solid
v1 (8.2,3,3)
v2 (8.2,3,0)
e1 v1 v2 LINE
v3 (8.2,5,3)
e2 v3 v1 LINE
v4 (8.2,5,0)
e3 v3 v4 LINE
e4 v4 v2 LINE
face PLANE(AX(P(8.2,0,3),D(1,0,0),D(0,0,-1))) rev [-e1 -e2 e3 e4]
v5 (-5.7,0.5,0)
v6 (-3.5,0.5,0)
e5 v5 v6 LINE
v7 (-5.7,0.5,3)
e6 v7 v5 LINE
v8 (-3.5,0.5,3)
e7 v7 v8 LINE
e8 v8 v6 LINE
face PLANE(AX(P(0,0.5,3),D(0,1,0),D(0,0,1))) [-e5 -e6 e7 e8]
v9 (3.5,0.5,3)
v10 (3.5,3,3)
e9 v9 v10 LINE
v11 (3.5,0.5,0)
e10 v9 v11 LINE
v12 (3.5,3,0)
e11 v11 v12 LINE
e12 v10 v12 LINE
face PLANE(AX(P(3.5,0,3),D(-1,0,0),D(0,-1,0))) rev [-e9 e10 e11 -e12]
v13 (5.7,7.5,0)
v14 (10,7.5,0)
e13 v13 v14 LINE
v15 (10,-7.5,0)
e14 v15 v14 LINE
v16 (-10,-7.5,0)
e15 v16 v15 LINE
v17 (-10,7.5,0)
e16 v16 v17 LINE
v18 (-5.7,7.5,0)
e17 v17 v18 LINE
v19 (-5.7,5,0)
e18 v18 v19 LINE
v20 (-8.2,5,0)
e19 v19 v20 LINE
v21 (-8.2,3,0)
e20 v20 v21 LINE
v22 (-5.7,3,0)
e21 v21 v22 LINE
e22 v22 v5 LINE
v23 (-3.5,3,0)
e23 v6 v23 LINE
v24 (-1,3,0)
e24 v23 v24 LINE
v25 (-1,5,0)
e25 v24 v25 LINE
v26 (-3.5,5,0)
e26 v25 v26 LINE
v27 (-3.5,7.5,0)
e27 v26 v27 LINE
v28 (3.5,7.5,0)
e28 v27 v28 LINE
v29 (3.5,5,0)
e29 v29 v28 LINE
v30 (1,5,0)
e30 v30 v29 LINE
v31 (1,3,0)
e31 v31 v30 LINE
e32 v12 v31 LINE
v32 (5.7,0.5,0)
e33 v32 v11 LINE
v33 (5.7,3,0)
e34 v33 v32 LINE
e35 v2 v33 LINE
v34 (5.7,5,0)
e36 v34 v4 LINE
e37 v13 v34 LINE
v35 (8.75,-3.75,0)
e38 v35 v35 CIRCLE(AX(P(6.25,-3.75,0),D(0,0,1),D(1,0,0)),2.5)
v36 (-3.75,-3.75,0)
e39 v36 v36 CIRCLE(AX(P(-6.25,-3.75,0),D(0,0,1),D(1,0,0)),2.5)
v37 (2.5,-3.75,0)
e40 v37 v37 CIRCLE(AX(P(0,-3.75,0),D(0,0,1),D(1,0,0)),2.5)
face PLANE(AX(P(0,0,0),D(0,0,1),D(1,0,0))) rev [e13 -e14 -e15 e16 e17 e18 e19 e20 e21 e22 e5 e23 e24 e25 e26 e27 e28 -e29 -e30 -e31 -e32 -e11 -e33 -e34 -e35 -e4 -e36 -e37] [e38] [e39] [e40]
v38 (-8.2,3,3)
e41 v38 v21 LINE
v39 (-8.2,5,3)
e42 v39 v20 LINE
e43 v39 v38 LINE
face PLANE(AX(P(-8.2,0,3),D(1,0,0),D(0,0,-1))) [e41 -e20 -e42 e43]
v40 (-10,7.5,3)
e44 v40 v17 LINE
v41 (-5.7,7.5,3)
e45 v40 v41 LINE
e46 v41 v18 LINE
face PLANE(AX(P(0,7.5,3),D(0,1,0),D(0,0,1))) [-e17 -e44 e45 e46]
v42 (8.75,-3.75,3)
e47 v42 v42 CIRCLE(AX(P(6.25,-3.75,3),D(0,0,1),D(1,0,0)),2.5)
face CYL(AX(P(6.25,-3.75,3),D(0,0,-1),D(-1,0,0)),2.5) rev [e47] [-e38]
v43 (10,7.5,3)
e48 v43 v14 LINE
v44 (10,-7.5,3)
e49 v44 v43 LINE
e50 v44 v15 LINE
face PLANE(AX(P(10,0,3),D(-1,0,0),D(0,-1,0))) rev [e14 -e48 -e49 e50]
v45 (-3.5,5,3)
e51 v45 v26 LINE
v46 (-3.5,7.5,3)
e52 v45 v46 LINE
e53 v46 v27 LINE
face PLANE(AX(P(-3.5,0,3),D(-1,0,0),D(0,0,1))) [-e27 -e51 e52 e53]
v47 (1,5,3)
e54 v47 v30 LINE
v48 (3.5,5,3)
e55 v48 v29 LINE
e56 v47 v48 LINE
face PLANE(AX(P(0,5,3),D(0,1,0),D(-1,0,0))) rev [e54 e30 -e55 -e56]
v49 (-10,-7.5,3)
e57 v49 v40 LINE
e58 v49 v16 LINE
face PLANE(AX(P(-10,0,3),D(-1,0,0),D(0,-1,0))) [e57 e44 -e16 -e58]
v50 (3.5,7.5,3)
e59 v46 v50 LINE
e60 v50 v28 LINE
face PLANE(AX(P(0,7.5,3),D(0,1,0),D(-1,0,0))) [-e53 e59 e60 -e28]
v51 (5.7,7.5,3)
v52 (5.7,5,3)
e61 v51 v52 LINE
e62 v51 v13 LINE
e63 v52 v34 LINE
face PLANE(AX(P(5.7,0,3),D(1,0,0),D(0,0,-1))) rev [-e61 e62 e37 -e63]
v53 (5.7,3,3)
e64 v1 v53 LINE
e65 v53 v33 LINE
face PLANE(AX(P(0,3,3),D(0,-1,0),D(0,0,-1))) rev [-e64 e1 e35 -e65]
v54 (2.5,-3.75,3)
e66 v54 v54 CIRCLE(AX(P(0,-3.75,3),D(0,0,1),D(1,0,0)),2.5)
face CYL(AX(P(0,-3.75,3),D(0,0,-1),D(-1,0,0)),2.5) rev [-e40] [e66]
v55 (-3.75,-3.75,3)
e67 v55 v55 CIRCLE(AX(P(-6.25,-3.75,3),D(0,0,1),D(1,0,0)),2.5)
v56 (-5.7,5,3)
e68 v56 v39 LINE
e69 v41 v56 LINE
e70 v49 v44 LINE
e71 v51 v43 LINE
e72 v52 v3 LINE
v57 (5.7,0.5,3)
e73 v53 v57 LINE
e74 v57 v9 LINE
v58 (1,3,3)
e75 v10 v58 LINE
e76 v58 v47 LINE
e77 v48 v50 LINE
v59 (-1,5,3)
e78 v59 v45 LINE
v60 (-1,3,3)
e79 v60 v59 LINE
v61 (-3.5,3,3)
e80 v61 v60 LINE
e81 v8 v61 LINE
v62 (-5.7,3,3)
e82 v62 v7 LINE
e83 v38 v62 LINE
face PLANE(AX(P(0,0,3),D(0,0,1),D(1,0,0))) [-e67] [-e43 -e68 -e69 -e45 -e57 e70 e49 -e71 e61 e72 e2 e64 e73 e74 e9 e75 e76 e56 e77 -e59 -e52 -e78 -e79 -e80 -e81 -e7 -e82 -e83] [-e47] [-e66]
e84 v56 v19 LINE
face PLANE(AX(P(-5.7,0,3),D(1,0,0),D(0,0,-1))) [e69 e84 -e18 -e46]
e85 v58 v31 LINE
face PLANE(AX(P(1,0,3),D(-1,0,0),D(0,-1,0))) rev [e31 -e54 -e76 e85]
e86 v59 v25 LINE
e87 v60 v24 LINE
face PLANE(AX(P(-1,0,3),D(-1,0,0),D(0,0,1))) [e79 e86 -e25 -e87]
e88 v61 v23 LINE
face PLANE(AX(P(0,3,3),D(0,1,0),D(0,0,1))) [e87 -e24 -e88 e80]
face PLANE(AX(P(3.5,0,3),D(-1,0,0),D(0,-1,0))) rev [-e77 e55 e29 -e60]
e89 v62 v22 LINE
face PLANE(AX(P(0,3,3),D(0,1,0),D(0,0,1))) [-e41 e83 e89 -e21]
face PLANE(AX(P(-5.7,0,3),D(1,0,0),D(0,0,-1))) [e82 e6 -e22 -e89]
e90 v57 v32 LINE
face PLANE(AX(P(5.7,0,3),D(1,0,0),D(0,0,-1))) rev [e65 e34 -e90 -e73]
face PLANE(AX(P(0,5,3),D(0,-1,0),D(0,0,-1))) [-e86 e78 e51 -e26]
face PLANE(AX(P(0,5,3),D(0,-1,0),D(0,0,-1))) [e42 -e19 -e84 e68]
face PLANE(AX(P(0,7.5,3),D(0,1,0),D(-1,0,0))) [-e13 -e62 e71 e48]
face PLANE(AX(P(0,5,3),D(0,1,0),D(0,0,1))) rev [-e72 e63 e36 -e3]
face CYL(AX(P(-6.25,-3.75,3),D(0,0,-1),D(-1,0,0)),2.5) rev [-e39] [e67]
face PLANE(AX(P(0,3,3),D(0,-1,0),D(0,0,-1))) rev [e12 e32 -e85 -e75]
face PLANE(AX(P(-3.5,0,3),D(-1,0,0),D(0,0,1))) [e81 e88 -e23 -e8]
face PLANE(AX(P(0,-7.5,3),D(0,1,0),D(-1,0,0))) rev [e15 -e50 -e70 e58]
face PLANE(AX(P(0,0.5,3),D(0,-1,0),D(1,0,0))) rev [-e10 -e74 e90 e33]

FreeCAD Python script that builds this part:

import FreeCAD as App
import Part
import Sketcher
from FreeCAD import Vector
Q = App.Units.Quantity

doc = App.newDocument("Part")
body = doc.addObject("PartDesign::Body", "Body")

sketch1 = body.newObject("Sketcher::SketchObject", "Sketch")
sketch1.AttachmentSupport = (doc.getObject("XY_Plane"), [""])
sketch1.MapMode = "FlatFace"
sketch1.addGeometry([
    Part.LineSegment(Vector(-10, -7.5, 0), Vector(10, -7.5, 0)),
    Part.LineSegment(Vector(10, -7.5, 0), Vector(10, 7.5, 0)),
    Part.LineSegment(Vector(10, 7.5, 0), Vector(5.7, 7.5, 0)),
    Part.LineSegment(Vector(5.7, 7.5, 0), Vector(5.7, 5, 0)),
    Part.LineSegment(Vector(5.7, 5, 0), Vector(8.2, 5, 0)),
    Part.LineSegment(Vector(8.2, 5, 0), Vector(8.2, 3, 0)),
    Part.LineSegment(Vector(8.2, 3, 0), Vector(5.7, 3, 0)),
    Part.LineSegment(Vector(5.7, 3, 0), Vector(5.7, 0.5, 0)),
    Part.LineSegment(Vector(5.7, 0.5, 0), Vector(3.5, 0.5, 0)),
    Part.LineSegment(Vector(3.5, 0.5, 0), Vector(3.5, 3, 0)),
    Part.LineSegment(Vector(3.5, 3, 0), Vector(1, 3, 0)),
    Part.LineSegment(Vector(1, 3, 0), Vector(1, 5, 0)),
    Part.LineSegment(Vector(1, 5, 0), Vector(3.5, 5, 0)),
    Part.LineSegment(Vector(3.5, 5, 0), Vector(3.5, 7.5, 0)),
    Part.LineSegment(Vector(3.5, 7.5, 0), Vector(-3.5, 7.5, 0)),
    Part.LineSegment(Vector(-3.5, 7.5, 0), Vector(-3.5, 5, 0)),
    Part.LineSegment(Vector(-3.5, 5, 0), Vector(-1, 5, 0)),
    Part.LineSegment(Vector(-1, 5, 0), Vector(-1, 3, 0)),
    Part.LineSegment(Vector(-1, 3, 0), Vector(-3.5, 3, 0)),
    Part.LineSegment(Vector(-3.5, 3, 0), Vector(-3.5, 0.5, 0)),
    Part.LineSegment(Vector(-3.5, 0.5, 0), Vector(-5.7, 0.5, 0)),
    Part.LineSegment(Vector(-5.7, 0.5, 0), Vector(-5.7, 3, 0)),
    Part.LineSegment(Vector(-5.7, 3, 0), Vector(-8.2, 3, 0)),
    Part.LineSegment(Vector(-8.2, 3, 0), Vector(-8.2, 5, 0)),
    Part.LineSegment(Vector(-8.2, 5, 0), Vector(-5.7, 5, 0)),
    Part.LineSegment(Vector(-5.7, 5, 0), Vector(-5.7, 7.5, 0)),
    Part.LineSegment(Vector(-5.7, 7.5, 0), Vector(-10, 7.5, 0)),
    Part.LineSegment(Vector(-10, 7.5, 0), Vector(-10, -7.5, 0)),
    Part.Circle(Vector(-6.2, -3.8, 0), Vector(0, 0, 1), 2.5),
    Part.Circle(Vector(0, -3.8, 0), Vector(0, 0, 1), 2.5),
    Part.Circle(Vector(6.2, -3.8, 0), Vector(0, 0, 1), 2.5),
], False)
sketch1.addConstraint([
    Sketcher.Constraint("Coincident", 0, 2, 1, 1),
    Sketcher.Constraint("Coincident", 1, 2, 2, 1),
    Sketcher.Constraint("Coincident", 2, 2, 3, 1),
    Sketcher.Constraint("Coincident", 3, 2, 4, 1),
    Sketcher.Constraint("Coincident", 4, 2, 5, 1),
    Sketcher.Constraint("Coincident", 5, 2, 6, 1),
    Sketcher.Constraint("Coincident", 6, 2, 7, 1),
    Sketcher.Constraint("Coincident", 7, 2, 8, 1),
    Sketcher.Constraint("Coincident", 8, 2, 9, 1),
    Sketcher.Constraint("Coincident", 9, 2, 10, 1),
    Sketcher.Constraint("Coincident", 10, 2, 11, 1),
    Sketcher.Constraint("Coincident", 11, 2, 12, 1),
    Sketcher.Constraint("Coincident", 12, 2, 13, 1),
    Sketcher.Constraint("Coincident", 13, 2, 14, 1),
    Sketcher.Constraint("Coincident", 14, 2, 15, 1),
    Sketcher.Constraint("Coincident", 15, 2, 16, 1),
    Sketcher.Constraint("Coincident", 16, 2, 17, 1),
    Sketcher.Constraint("Coincident", 17, 2, 18, 1),
    Sketcher.Constraint("Coincident", 18, 2, 19, 1),
    Sketcher.Constraint("Coincident", 19, 2, 20, 1),
    Sketcher.Constraint("Coincident", 20, 2, 21, 1),
    Sketcher.Constraint("Coincident", 21, 2, 22, 1),
    Sketcher.Constraint("Coincident", 22, 2, 23, 1),
    Sketcher.Constraint("Coincident", 23, 2, 24, 1),
    Sketcher.Constraint("Coincident", 24, 2, 25, 1),
    Sketcher.Constraint("Coincident", 25, 2, 26, 1),
    Sketcher.Constraint("Coincident", 26, 2, 27, 1),
    Sketcher.Constraint("Coincident", 27, 2, 0, 1),
    Sketcher.Constraint("Horizontal", 0),
    Sketcher.Constraint("Vertical", 1),
    Sketcher.Constraint("Horizontal", 2),
    Sketcher.Constraint("Vertical", 3),
    Sketcher.Constraint("Horizontal", 4),
    Sketcher.Constraint("Vertical", 5),
    Sketcher.Constraint("Horizontal", 6),
    Sketcher.Constraint("Vertical", 7),
    Sketcher.Constraint("Horizontal", 8),
    Sketcher.Constraint("Vertical", 9),
    Sketcher.Constraint("Horizontal", 10),
    Sketcher.Constraint("Vertical", 11),
    Sketcher.Constraint("Horizontal", 12),
    Sketcher.Constraint("Vertical", 13),
    Sketcher.Constraint("Horizontal", 14),
    Sketcher.Constraint("Vertical", 15),
    Sketcher.Constraint("Horizontal", 16),
    Sketcher.Constraint("Vertical", 17),
    Sketcher.Constraint("Horizontal", 18),
    Sketcher.Constraint("Vertical", 19),
    Sketcher.Constraint("Horizontal", 20),
    Sketcher.Constraint("Vertical", 21),
    Sketcher.Constraint("Horizontal", 22),
    Sketcher.Constraint("Vertical", 23),
    Sketcher.Constraint("Horizontal", 24),
    Sketcher.Constraint("Vertical", 25),
    Sketcher.Constraint("Horizontal", 26),
    Sketcher.Constraint("Vertical", 27),
    Sketcher.Constraint("Equal", 28, 29),
    Sketcher.Constraint("Equal", 29, 30),
    Sketcher.Constraint("Symmetric", 0, 2, 26, 2, -1, 1),
    Sketcher.Constraint("Symmetric", 28, 3, 30, 3, -2),
    Sketcher.Constraint("Symmetric", 12, 2, 15, 2, -2),
    Sketcher.Constraint("Symmetric", 10, 2, 17, 2, -2),
    Sketcher.Constraint("Symmetric", 8, 2, 19, 2, -2),
    Sketcher.Constraint("Symmetric", 6, 2, 21, 2, -2),
    Sketcher.Constraint("Symmetric", 4, 2, 23, 2, -2),
    Sketcher.Constraint("Symmetric", 2, 2, 25, 2, -2),
    Sketcher.Constraint("PointOnObject", 29, 3, -2),
    Sketcher.Constraint("Horizontal", 28, 3, 29, 3),
    Sketcher.Constraint("Horizontal", 6, 2, 9, 2),
    Sketcher.Constraint("Horizontal", 4, 2, 11, 2),
    Sketcher.Constraint("Horizontal", 2, 2, 13, 2),
    Sketcher.Constraint("Vertical", 3, 2, 6, 2),
    Sketcher.Constraint("Vertical", 9, 2, 12, 2),
    Sketcher.Constraint("Equal", 6, 10),
    Sketcher.Constraint("Equal", 24, 3),
    Sketcher.Constraint("Equal", 3, 7),
    Sketcher.Constraint("Diameter", 28, Q("5 mm")),
    Sketcher.Constraint("DistanceX", 0, 1, 0, 2, Q("20 mm")),
    Sketcher.Constraint("DistanceX", 14, 2, 14, 1, Q("7 mm")),
    Sketcher.Constraint("DistanceY", 1, 1, 1, 2, Q("15 mm")),
    Sketcher.Constraint("DistanceY", 5, 2, 5, 1, Q("2 mm")),
    Sketcher.Constraint("DistanceX", 2, 2, 2, 1, Q("4.3 mm")),
    Sketcher.Constraint("DistanceX", 4, 1, 4, 2, Q("2.5 mm")),
    Sketcher.Constraint("DistanceX", 28, 3, 30, 3, Q("12.5 mm")),
    Sketcher.Constraint("DistanceY", 28, 3, -1, 1, Q("3.75 mm")),
])
pad1 = body.newObject("PartDesign::Pad", "Pad")
pad1.Profile = sketch1
pad1.Length = 3

doc.recompute()
